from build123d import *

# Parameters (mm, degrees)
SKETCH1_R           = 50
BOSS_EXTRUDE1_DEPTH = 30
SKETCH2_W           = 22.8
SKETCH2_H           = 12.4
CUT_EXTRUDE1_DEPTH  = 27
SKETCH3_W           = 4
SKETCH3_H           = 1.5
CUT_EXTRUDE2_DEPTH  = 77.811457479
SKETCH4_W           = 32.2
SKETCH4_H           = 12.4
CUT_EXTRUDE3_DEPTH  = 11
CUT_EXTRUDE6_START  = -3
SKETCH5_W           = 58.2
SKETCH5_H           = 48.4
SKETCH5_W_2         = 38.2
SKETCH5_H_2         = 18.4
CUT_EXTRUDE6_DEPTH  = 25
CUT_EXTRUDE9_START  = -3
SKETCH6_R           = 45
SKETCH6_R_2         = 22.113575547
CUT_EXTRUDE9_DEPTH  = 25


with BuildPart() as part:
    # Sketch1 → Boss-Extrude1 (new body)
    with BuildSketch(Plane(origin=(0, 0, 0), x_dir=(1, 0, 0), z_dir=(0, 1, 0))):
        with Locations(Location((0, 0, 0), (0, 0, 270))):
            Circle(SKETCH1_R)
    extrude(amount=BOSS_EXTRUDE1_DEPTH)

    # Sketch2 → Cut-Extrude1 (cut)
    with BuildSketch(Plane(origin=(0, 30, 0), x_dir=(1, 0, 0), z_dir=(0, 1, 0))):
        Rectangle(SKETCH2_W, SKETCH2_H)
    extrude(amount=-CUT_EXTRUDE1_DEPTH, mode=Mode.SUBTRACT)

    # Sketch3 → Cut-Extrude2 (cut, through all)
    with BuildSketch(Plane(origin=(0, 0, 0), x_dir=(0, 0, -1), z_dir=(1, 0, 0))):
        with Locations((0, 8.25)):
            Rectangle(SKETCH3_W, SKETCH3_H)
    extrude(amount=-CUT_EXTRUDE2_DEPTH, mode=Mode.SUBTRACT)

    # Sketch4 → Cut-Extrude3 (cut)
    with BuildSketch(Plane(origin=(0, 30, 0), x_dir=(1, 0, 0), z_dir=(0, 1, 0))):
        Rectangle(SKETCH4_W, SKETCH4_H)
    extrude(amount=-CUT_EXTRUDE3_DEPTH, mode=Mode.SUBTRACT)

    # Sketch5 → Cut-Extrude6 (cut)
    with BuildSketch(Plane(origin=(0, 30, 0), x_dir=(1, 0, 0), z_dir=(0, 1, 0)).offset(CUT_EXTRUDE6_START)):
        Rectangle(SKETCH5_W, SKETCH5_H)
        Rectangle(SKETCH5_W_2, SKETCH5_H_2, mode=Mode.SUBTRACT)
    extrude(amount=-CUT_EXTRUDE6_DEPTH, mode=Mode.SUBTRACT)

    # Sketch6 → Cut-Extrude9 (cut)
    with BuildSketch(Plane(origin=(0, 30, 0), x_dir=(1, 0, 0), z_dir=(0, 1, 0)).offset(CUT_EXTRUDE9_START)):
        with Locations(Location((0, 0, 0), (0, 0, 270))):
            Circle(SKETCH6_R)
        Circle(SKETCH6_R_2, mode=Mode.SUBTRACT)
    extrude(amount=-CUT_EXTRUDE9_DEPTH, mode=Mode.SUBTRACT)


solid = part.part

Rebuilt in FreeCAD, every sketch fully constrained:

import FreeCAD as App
import Part
import Sketcher

doc = App.newDocument("Part")
body = doc.addObject("PartDesign::Body", "Body")

# Sketch on XZ plane
sketch1 = body.newObject("Sketcher::SketchObject", "Sketch")
sketch1.AttachmentSupport = (doc.getObject("XZ_Plane"), [""])
sketch1.MapMode = "FlatFace"
sketch1.addGeometry(Part.Circle(App.Vector(0, 0, 0), App.Vector(0, 0, 1), 50), False)
sketch1.addConstraint([
    Sketcher.Constraint("Coincident", 0, 3, -1, 1),
    Sketcher.Constraint("Diameter", 0, 100.0),
])
pad1 = body.newObject("PartDesign::Pad", "Pad")
pad1.Profile = sketch1
pad1.Length = 30
pad1.Reversed = True

# Sketch on XZ plane
sketch2 = body.newObject("Sketcher::SketchObject", "Sketch001")
sketch2.AttachmentSupport = (doc.getObject("XZ_Plane"), [""])
sketch2.MapMode = "FlatFace"
sketch2.AttachmentOffset = App.Placement(App.Vector(0, 0, -30), App.Rotation())
sketch2.addGeometry([
    Part.LineSegment(App.Vector(-11, -6, 0), App.Vector(-11, 6, 0)),
    Part.LineSegment(App.Vector(-11, 6, 0), App.Vector(11, 6, 0)),
    Part.LineSegment(App.Vector(11, 6, 0), App.Vector(11, -6, 0)),
    Part.LineSegment(App.Vector(11, -6, 0), App.Vector(-11, -6, 0)),
], False)
sketch2.addConstraint([
    Sketcher.Constraint("Coincident", 0, 2, 1, 1),
    Sketcher.Constraint("Coincident", 1, 2, 2, 1),
    Sketcher.Constraint("Coincident", 2, 2, 3, 1),
    Sketcher.Constraint("Coincident", 3, 2, 0, 1),
    Sketcher.Constraint("Vertical", 0),
    Sketcher.Constraint("Horizontal", 1),
    Sketcher.Constraint("Vertical", 2),
    Sketcher.Constraint("Horizontal", 3),
    Sketcher.Constraint("Symmetric", 0, 2, 2, 2, -1, 1),
    Sketcher.Constraint("DistanceX", 1, 1, 1, 2, 22.8),
    Sketcher.Constraint("DistanceY", 0, 1, 0, 2, 12.4),
])
pocket1 = body.newObject("PartDesign::Pocket", "Pocket")
pocket1.Profile = sketch2
pocket1.Length = 27
pocket1.Reversed = True

# Sketch on YZ plane
sketch3 = body.newObject("Sketcher::SketchObject", "Sketch002")
sketch3.AttachmentSupport = (doc.getObject("YZ_Plane"), [""])
sketch3.MapMode = "FlatFace"
sketch3.addGeometry([
    Part.LineSegment(App.Vector(9, 2, 0), App.Vector(7.5, 2, 0)),
    Part.LineSegment(App.Vector(7.5, 2, 0), App.Vector(7.5, -2, 0)),
    Part.LineSegment(App.Vector(7.5, -2, 0), App.Vector(9, -2, 0)),
    Part.LineSegment(App.Vector(9, -2, 0), App.Vector(9, 2, 0)),
], False)
sketch3.addConstraint([
    Sketcher.Constraint("Coincident", 0, 2, 1, 1),
    Sketcher.Constraint("Coincident", 1, 2, 2, 1),
    Sketcher.Constraint("Coincident", 2, 2, 3, 1),
    Sketcher.Constraint("Coincident", 3, 2, 0, 1),
    Sketcher.Constraint("Horizontal", 0),
    Sketcher.Constraint("Vertical", 1),
    Sketcher.Constraint("Horizontal", 2),
    Sketcher.Constraint("Vertical", 3),
    Sketcher.Constraint("DistanceY", 1, 2, 1, 1, 4.0),
    Sketcher.Constraint("DistanceX", 0, 2, 0, 1, 1.5),
    Sketcher.Constraint("DistanceY", -1, 1, 0, 2, 2.0),
    Sketcher.Constraint("DistanceX", -1, 1, 2, 2, 9.0),
])
pocket2 = body.newObject("PartDesign::Pocket", "Pocket001")
pocket2.Profile = sketch3
pocket2.Type = "ThroughAll"

# Sketch on XZ plane
sketch4 = body.newObject("Sketcher::SketchObject", "Sketch003")
sketch4.AttachmentSupport = (doc.getObject("XZ_Plane"), [""])
sketch4.MapMode = "FlatFace"
sketch4.AttachmentOffset = App.Placement(App.Vector(0, 0, -30), App.Rotation())
sketch4.addGeometry([
    Part.LineSegment(App.Vector(-16, -6, 0), App.Vector(-16, 6, 0)),
    Part.LineSegment(App.Vector(-16, 6, 0), App.Vector(16, 6, 0)),
    Part.LineSegment(App.Vector(16, 6, 0), App.Vector(16, -6, 0)),
    Part.LineSegment(App.Vector(16, -6, 0), App.Vector(-16, -6, 0)),
], False)
sketch4.addConstraint([
    Sketcher.Constraint("Coincident", 0, 2, 1, 1),
    Sketcher.Constraint("Coincident", 1, 2, 2, 1),
    Sketcher.Constraint("Coincident", 2, 2, 3, 1),
    Sketcher.Constraint("Coincident", 3, 2, 0, 1),
    Sketcher.Constraint("Vertical", 0),
    Sketcher.Constraint("Horizontal", 1),
    Sketcher.Constraint("Vertical", 2),
    Sketcher.Constraint("Horizontal", 3),
    Sketcher.Constraint("Symmetric", 0, 2, 2, 2, -1, 1),
    Sketcher.Constraint("DistanceX", 1, 1, 1, 2, 32.2),
    Sketcher.Constraint("DistanceY", 0, 1, 0, 2, 12.4),
])
pocket3 = body.newObject("PartDesign::Pocket", "Pocket002")
pocket3.Profile = sketch4
pocket3.Length = 11
pocket3.Reversed = True

# Sketch on XZ plane
sketch5 = body.newObject("Sketcher::SketchObject", "Sketch004")
sketch5.AttachmentSupport = (doc.getObject("XZ_Plane"), [""])
sketch5.MapMode = "FlatFace"
sketch5.AttachmentOffset = App.Placement(App.Vector(0, 0, -27), App.Rotation())
sketch5.addGeometry([
    Part.LineSegment(App.Vector(-29, -24, 0), App.Vector(-29, 24, 0)),  # 0
    Part.LineSegment(App.Vector(-29, 24, 0), App.Vector(29, 24, 0)),  # 1
    Part.LineSegment(App.Vector(29, 24, 0), App.Vector(29, -24, 0)),  # 2
    Part.LineSegment(App.Vector(29, -24, 0), App.Vector(-29, -24, 0)),  # 3
    Part.LineSegment(App.Vector(19, 9, 0), App.Vector(-19, 9, 0)),  # 4
    Part.LineSegment(App.Vector(-19, 9, 0), App.Vector(-19, -9, 0)),  # 5
    Part.LineSegment(App.Vector(-19, -9, 0), App.Vector(19, -9, 0)),  # 6
    Part.LineSegment(App.Vector(19, -9, 0), App.Vector(19, 9, 0)),  # 7
], False)
sketch5.addConstraint([
    Sketcher.Constraint("Coincident", 0, 2, 1, 1),
    Sketcher.Constraint("Coincident", 1, 2, 2, 1),
    Sketcher.Constraint("Coincident", 2, 2, 3, 1),
    Sketcher.Constraint("Coincident", 3, 2, 0, 1),
    Sketcher.Constraint("Coincident", 4, 2, 5, 1),
    Sketcher.Constraint("Coincident", 5, 2, 6, 1),
    Sketcher.Constraint("Coincident", 6, 2, 7, 1),
    Sketcher.Constraint("Coincident", 7, 2, 4, 1),
    Sketcher.Constraint("Vertical", 0),
    Sketcher.Constraint("Horizontal", 1),
    Sketcher.Constraint("Vertical", 2),
    Sketcher.Constraint("Horizontal", 3),
    Sketcher.Constraint("Horizontal", 4),
    Sketcher.Constraint("Vertical", 5),
    Sketcher.Constraint("Horizontal", 6),
    Sketcher.Constraint("Vertical", 7),
    Sketcher.Constraint("Symmetric", 0, 2, 2, 2, -1, 1),
    Sketcher.Constraint("Symmetric", 4, 2, 6, 2, -1, 1),
    Sketcher.Constraint("DistanceX", 1, 1, 1, 2, 58.2),
    Sketcher.Constraint("DistanceX", 4, 2, 4, 1, 38.2),
    Sketcher.Constraint("DistanceY", 0, 1, 0, 2, 48.4),
    Sketcher.Constraint("DistanceY", 5, 2, 5, 1, 18.4),
])
pocket4 = body.newObject("PartDesign::Pocket", "Pocket003")
pocket4.Profile = sketch5
pocket4.Length = 25
pocket4.Reversed = True

# Sketch on XZ plane
sketch6 = body.newObject("Sketcher::SketchObject", "Sketch005")
sketch6.AttachmentSupport = (doc.getObject("XZ_Plane"), [""])
sketch6.MapMode = "FlatFace"
sketch6.AttachmentOffset = App.Placement(App.Vector(0, 0, -27), App.Rotation())
sketch6.addGeometry([
    Part.Circle(App.Vector(0, 0, 0), App.Vector(0, 0, 1), 45),
    Part.Circle(App.Vector(0, 0, 0), App.Vector(0, 0, 1), 22),
], False)
sketch6.addConstraint([
    Sketcher.Constraint("Coincident", 0, 3, -1, 1),
    Sketcher.Constraint("Coincident", 1, 3, -1, 1),
    Sketcher.Constraint("Diameter", 0, 90.0),
    Sketcher.Constraint("Diameter", 1, 44.227151),
])
pocket5 = body.newObject("PartDesign::Pocket", "Pocket004")
pocket5.Profile = sketch6
pocket5.Length = 25
pocket5.Reversed = True

doc.recompute()
